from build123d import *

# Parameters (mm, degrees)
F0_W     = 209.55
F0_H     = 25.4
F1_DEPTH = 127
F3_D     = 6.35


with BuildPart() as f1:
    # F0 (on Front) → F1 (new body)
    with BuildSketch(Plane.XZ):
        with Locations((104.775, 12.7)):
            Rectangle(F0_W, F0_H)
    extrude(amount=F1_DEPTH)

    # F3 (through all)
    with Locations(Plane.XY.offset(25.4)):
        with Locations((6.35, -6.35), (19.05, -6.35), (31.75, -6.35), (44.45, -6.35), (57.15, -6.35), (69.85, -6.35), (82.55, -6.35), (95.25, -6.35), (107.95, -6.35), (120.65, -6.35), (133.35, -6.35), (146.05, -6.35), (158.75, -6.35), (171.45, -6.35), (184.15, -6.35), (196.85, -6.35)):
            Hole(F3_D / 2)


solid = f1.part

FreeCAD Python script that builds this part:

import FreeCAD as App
import Part
import Sketcher

V = App.Vector
Q = App.Units.Quantity


def add_polygon(sketch, points):
    """Adds a closed chain of lines whose ends are joined by coincident constraints."""
    first, n = sketch.GeometryCount, len(points)
    for a, b in zip(points, points[1:] + points[:1]):
        sketch.addGeometry(Part.LineSegment(App.Vector(*a, 0), App.Vector(*b, 0)), False)
    for i in range(n):
        sketch.addConstraint(Sketcher.Constraint("Coincident", first + i, 2, first + (i + 1) % n, 1))

doc = App.newDocument("Part")
body = doc.addObject("PartDesign::Body", "Body")

# Sketch on XZ plane
sketch1 = body.newObject("Sketcher::SketchObject", "Sketch")
sketch1.AttachmentSupport = (doc.getObject("XZ_Plane"), [""])
sketch1.MapMode = "FlatFace"
add_polygon(sketch1, [(0, 25.4), (0, 0), (209.55, 0), (209.55, 25.4)])  # lines 0-3
sketch1.addConstraint(Sketcher.Constraint("Vertical", 0))
sketch1.addConstraint(Sketcher.Constraint("Horizontal", 1))
sketch1.addConstraint(Sketcher.Constraint("Vertical", 2))
sketch1.addConstraint(Sketcher.Constraint("Horizontal", 3))
sketch1.addConstraint(Sketcher.Constraint("Coincident", 0, 2, -1, 1))
sketch1.addConstraint(Sketcher.Constraint("DistanceY", 0, 2, 0, 1, Q("1 in")))
sketch1.addConstraint(Sketcher.Constraint("DistanceX", 1, 1, 1, 2, Q("8.25 in")))
pad1 = body.newObject("PartDesign::Pad", "Pad")
pad1.Profile = sketch1
pad1.Length = Q("5 in")

# Sketch on XY plane
sketch2 = body.newObject("Sketcher::SketchObject", "Sketch001")
sketch2.AttachmentSupport = (doc.getObject("XY_Plane"), [""])
sketch2.MapMode = "FlatFace"
sketch2.AttachmentOffset = App.Placement(V(0, 0, 1 * 25.4), App.Rotation())
sketch2.addGeometry(Part.Circle(V(6.35, -6.35, 0), V(0, 0, 1), 3.175), False)
sketch2.addGeometry(Part.Circle(V(19.05, -6.35, 0), V(0, 0, 1), 3.175), False)
sketch2.addGeometry(Part.Circle(V(31.75, -6.35, 0), V(0, 0, 1), 3.175), False)
sketch2.addGeometry(Part.Circle(V(44.45, -6.35, 0), V(0, 0, 1), 3.175), False)
sketch2.addGeometry(Part.Circle(V(57.15, -6.35, 0), V(0, 0, 1), 3.175), False)
sketch2.addGeometry(Part.Circle(V(69.85, -6.35, 0), V(0, 0, 1), 3.175), False)
sketch2.addGeometry(Part.Circle(V(82.55, -6.35, 0), V(0, 0, 1), 3.175), False)
sketch2.addGeometry(Part.Circle(V(95.25, -6.35, 0), V(0, 0, 1), 3.175), False)
sketch2.addGeometry(Part.Circle(V(107.95, -6.35, 0), V(0, 0, 1), 3.175), False)
sketch2.addGeometry(Part.Circle(V(120.65, -6.35, 0), V(0, 0, 1), 3.175), False)
sketch2.addGeometry(Part.Circle(V(133.35, -6.35, 0), V(0, 0, 1), 3.175), False)
sketch2.addGeometry(Part.Circle(V(146.05, -6.35, 0), V(0, 0, 1), 3.175), False)
sketch2.addGeometry(Part.Circle(V(158.75, -6.35, 0), V(0, 0, 1), 3.175), False)
sketch2.addGeometry(Part.Circle(V(171.45, -6.35, 0), V(0, 0, 1), 3.175), False)
sketch2.addGeometry(Part.Circle(V(184.15, -6.35, 0), V(0, 0, 1), 3.175), False)
sketch2.addGeometry(Part.Circle(V(196.85, -6.35, 0), V(0, 0, 1), 3.175), False)
sketch2.addConstraint(Sketcher.Constraint("Equal", 0, 1))
sketch2.addConstraint(Sketcher.Constraint("Equal", 1, 2))
sketch2.addConstraint(Sketcher.Constraint("Equal", 2, 3))
sketch2.addConstraint(Sketcher.Constraint("Equal", 3, 4))
sketch2.addConstraint(Sketcher.Constraint("Equal", 4, 5))
sketch2.addConstraint(Sketcher.Constraint("Equal", 5, 6))
sketch2.addConstraint(Sketcher.Constraint("Equal", 6, 7))
sketch2.addConstraint(Sketcher.Constraint("Equal", 7, 8))
sketch2.addConstraint(Sketcher.Constraint("Equal", 8, 9))
sketch2.addConstraint(Sketcher.Constraint("Equal", 9, 10))
sketch2.addConstraint(Sketcher.Constraint("Equal", 10, 11))
sketch2.addConstraint(Sketcher.Constraint("Equal", 11, 12))
sketch2.addConstraint(Sketcher.Constraint("Equal", 12, 13))
sketch2.addConstraint(Sketcher.Constraint("Equal", 13, 14))
sketch2.addConstraint(Sketcher.Constraint("Equal", 14, 15))
sketch2.addConstraint(Sketcher.Constraint("Horizontal", 0, 3, 1, 3))
sketch2.addConstraint(Sketcher.Constraint("Horizontal", 1, 3, 2, 3))
sketch2.addConstraint(Sketcher.Constraint("Horizontal", 2, 3, 3, 3))
sketch2.addConstraint(Sketcher.Constraint("Horizontal", 3, 3, 4, 3))
sketch2.addConstraint(Sketcher.Constraint("Horizontal", 4, 3, 5, 3))
sketch2.addConstraint(Sketcher.Constraint("Horizontal", 5, 3, 6, 3))
sketch2.addConstraint(Sketcher.Constraint("Horizontal", 6, 3, 7, 3))
sketch2.addConstraint(Sketcher.Constraint("Horizontal", 7, 3, 8, 3))
sketch2.addConstraint(Sketcher.Constraint("Horizontal", 8, 3, 9, 3))
sketch2.addConstraint(Sketcher.Constraint("Horizontal", 9, 3, 10, 3))
sketch2.addConstraint(Sketcher.Constraint("Horizontal", 10, 3, 11, 3))
sketch2.addConstraint(Sketcher.Constraint("Horizontal", 11, 3, 12, 3))
sketch2.addConstraint(Sketcher.Constraint("Horizontal", 12, 3, 13, 3))
sketch2.addConstraint(Sketcher.Constraint("Horizontal", 13, 3, 14, 3))
sketch2.addConstraint(Sketcher.Constraint("Horizontal", 14, 3, 15, 3))
sketch2.addConstraint(Sketcher.Constraint("Diameter", 0, Q("0.25 in")))
sketch2.addConstraint(Sketcher.Constraint("DistanceX", 0, 3, 2, 3, Q("1 in")))
sketch2.addConstraint(Sketcher.Constraint("DistanceX", 1, 3, 3, 3, Q("1 in")))
sketch2.addConstraint(Sketcher.Constraint("DistanceX", 2, 3, 4, 3, Q("1 in")))
sketch2.addConstraint(Sketcher.Constraint("DistanceX", 3, 3, 5, 3, Q("1 in")))
sketch2.addConstraint(Sketcher.Constraint("DistanceX", 4, 3, 6, 3, Q("1 in")))
sketch2.addConstraint(Sketcher.Constraint("DistanceX", 5, 3, 7, 3, Q("1 in")))
sketch2.addConstraint(Sketcher.Constraint("DistanceX", 6, 3, 8, 3, Q("1 in")))
sketch2.addConstraint(Sketcher.Constraint("DistanceX", 7, 3, 9, 3, Q("1 in")))
sketch2.addConstraint(Sketcher.Constraint("DistanceX", 8, 3, 10, 3, Q("1 in")))
sketch2.addConstraint(Sketcher.Constraint("DistanceX", 9, 3, 11, 3, Q("1 in")))
sketch2.addConstraint(Sketcher.Constraint("DistanceX", 10, 3, 12, 3, Q("1 in")))
sketch2.addConstraint(Sketcher.Constraint("DistanceX", 11, 3, 13, 3, Q("1 in")))
sketch2.addConstraint(Sketcher.Constraint("DistanceX", 12, 3, 14, 3, Q("1 in")))
sketch2.addConstraint(Sketcher.Constraint("DistanceX", 13, 3, 15, 3, Q("1 in")))
sketch2.addConstraint(Sketcher.Constraint("DistanceX", 0, 3, 1, 3, Q("0.5 in")))
sketch2.addConstraint(Sketcher.Constraint("DistanceX", -1, 1, 0, 3, Q("0.25 in")))
sketch2.addConstraint(Sketcher.Constraint("DistanceY", 0, 3, -1, 1, Q("0.25 in")))
doc.recompute()
hole = body.newObject("PartDesign::Hole", "Hole")
hole.Profile = sketch2
hole.ThreadType = "None"
hole.Diameter = Q("0.25 in")
hole.DepthType = "ThroughAll"

doc.recompute()
